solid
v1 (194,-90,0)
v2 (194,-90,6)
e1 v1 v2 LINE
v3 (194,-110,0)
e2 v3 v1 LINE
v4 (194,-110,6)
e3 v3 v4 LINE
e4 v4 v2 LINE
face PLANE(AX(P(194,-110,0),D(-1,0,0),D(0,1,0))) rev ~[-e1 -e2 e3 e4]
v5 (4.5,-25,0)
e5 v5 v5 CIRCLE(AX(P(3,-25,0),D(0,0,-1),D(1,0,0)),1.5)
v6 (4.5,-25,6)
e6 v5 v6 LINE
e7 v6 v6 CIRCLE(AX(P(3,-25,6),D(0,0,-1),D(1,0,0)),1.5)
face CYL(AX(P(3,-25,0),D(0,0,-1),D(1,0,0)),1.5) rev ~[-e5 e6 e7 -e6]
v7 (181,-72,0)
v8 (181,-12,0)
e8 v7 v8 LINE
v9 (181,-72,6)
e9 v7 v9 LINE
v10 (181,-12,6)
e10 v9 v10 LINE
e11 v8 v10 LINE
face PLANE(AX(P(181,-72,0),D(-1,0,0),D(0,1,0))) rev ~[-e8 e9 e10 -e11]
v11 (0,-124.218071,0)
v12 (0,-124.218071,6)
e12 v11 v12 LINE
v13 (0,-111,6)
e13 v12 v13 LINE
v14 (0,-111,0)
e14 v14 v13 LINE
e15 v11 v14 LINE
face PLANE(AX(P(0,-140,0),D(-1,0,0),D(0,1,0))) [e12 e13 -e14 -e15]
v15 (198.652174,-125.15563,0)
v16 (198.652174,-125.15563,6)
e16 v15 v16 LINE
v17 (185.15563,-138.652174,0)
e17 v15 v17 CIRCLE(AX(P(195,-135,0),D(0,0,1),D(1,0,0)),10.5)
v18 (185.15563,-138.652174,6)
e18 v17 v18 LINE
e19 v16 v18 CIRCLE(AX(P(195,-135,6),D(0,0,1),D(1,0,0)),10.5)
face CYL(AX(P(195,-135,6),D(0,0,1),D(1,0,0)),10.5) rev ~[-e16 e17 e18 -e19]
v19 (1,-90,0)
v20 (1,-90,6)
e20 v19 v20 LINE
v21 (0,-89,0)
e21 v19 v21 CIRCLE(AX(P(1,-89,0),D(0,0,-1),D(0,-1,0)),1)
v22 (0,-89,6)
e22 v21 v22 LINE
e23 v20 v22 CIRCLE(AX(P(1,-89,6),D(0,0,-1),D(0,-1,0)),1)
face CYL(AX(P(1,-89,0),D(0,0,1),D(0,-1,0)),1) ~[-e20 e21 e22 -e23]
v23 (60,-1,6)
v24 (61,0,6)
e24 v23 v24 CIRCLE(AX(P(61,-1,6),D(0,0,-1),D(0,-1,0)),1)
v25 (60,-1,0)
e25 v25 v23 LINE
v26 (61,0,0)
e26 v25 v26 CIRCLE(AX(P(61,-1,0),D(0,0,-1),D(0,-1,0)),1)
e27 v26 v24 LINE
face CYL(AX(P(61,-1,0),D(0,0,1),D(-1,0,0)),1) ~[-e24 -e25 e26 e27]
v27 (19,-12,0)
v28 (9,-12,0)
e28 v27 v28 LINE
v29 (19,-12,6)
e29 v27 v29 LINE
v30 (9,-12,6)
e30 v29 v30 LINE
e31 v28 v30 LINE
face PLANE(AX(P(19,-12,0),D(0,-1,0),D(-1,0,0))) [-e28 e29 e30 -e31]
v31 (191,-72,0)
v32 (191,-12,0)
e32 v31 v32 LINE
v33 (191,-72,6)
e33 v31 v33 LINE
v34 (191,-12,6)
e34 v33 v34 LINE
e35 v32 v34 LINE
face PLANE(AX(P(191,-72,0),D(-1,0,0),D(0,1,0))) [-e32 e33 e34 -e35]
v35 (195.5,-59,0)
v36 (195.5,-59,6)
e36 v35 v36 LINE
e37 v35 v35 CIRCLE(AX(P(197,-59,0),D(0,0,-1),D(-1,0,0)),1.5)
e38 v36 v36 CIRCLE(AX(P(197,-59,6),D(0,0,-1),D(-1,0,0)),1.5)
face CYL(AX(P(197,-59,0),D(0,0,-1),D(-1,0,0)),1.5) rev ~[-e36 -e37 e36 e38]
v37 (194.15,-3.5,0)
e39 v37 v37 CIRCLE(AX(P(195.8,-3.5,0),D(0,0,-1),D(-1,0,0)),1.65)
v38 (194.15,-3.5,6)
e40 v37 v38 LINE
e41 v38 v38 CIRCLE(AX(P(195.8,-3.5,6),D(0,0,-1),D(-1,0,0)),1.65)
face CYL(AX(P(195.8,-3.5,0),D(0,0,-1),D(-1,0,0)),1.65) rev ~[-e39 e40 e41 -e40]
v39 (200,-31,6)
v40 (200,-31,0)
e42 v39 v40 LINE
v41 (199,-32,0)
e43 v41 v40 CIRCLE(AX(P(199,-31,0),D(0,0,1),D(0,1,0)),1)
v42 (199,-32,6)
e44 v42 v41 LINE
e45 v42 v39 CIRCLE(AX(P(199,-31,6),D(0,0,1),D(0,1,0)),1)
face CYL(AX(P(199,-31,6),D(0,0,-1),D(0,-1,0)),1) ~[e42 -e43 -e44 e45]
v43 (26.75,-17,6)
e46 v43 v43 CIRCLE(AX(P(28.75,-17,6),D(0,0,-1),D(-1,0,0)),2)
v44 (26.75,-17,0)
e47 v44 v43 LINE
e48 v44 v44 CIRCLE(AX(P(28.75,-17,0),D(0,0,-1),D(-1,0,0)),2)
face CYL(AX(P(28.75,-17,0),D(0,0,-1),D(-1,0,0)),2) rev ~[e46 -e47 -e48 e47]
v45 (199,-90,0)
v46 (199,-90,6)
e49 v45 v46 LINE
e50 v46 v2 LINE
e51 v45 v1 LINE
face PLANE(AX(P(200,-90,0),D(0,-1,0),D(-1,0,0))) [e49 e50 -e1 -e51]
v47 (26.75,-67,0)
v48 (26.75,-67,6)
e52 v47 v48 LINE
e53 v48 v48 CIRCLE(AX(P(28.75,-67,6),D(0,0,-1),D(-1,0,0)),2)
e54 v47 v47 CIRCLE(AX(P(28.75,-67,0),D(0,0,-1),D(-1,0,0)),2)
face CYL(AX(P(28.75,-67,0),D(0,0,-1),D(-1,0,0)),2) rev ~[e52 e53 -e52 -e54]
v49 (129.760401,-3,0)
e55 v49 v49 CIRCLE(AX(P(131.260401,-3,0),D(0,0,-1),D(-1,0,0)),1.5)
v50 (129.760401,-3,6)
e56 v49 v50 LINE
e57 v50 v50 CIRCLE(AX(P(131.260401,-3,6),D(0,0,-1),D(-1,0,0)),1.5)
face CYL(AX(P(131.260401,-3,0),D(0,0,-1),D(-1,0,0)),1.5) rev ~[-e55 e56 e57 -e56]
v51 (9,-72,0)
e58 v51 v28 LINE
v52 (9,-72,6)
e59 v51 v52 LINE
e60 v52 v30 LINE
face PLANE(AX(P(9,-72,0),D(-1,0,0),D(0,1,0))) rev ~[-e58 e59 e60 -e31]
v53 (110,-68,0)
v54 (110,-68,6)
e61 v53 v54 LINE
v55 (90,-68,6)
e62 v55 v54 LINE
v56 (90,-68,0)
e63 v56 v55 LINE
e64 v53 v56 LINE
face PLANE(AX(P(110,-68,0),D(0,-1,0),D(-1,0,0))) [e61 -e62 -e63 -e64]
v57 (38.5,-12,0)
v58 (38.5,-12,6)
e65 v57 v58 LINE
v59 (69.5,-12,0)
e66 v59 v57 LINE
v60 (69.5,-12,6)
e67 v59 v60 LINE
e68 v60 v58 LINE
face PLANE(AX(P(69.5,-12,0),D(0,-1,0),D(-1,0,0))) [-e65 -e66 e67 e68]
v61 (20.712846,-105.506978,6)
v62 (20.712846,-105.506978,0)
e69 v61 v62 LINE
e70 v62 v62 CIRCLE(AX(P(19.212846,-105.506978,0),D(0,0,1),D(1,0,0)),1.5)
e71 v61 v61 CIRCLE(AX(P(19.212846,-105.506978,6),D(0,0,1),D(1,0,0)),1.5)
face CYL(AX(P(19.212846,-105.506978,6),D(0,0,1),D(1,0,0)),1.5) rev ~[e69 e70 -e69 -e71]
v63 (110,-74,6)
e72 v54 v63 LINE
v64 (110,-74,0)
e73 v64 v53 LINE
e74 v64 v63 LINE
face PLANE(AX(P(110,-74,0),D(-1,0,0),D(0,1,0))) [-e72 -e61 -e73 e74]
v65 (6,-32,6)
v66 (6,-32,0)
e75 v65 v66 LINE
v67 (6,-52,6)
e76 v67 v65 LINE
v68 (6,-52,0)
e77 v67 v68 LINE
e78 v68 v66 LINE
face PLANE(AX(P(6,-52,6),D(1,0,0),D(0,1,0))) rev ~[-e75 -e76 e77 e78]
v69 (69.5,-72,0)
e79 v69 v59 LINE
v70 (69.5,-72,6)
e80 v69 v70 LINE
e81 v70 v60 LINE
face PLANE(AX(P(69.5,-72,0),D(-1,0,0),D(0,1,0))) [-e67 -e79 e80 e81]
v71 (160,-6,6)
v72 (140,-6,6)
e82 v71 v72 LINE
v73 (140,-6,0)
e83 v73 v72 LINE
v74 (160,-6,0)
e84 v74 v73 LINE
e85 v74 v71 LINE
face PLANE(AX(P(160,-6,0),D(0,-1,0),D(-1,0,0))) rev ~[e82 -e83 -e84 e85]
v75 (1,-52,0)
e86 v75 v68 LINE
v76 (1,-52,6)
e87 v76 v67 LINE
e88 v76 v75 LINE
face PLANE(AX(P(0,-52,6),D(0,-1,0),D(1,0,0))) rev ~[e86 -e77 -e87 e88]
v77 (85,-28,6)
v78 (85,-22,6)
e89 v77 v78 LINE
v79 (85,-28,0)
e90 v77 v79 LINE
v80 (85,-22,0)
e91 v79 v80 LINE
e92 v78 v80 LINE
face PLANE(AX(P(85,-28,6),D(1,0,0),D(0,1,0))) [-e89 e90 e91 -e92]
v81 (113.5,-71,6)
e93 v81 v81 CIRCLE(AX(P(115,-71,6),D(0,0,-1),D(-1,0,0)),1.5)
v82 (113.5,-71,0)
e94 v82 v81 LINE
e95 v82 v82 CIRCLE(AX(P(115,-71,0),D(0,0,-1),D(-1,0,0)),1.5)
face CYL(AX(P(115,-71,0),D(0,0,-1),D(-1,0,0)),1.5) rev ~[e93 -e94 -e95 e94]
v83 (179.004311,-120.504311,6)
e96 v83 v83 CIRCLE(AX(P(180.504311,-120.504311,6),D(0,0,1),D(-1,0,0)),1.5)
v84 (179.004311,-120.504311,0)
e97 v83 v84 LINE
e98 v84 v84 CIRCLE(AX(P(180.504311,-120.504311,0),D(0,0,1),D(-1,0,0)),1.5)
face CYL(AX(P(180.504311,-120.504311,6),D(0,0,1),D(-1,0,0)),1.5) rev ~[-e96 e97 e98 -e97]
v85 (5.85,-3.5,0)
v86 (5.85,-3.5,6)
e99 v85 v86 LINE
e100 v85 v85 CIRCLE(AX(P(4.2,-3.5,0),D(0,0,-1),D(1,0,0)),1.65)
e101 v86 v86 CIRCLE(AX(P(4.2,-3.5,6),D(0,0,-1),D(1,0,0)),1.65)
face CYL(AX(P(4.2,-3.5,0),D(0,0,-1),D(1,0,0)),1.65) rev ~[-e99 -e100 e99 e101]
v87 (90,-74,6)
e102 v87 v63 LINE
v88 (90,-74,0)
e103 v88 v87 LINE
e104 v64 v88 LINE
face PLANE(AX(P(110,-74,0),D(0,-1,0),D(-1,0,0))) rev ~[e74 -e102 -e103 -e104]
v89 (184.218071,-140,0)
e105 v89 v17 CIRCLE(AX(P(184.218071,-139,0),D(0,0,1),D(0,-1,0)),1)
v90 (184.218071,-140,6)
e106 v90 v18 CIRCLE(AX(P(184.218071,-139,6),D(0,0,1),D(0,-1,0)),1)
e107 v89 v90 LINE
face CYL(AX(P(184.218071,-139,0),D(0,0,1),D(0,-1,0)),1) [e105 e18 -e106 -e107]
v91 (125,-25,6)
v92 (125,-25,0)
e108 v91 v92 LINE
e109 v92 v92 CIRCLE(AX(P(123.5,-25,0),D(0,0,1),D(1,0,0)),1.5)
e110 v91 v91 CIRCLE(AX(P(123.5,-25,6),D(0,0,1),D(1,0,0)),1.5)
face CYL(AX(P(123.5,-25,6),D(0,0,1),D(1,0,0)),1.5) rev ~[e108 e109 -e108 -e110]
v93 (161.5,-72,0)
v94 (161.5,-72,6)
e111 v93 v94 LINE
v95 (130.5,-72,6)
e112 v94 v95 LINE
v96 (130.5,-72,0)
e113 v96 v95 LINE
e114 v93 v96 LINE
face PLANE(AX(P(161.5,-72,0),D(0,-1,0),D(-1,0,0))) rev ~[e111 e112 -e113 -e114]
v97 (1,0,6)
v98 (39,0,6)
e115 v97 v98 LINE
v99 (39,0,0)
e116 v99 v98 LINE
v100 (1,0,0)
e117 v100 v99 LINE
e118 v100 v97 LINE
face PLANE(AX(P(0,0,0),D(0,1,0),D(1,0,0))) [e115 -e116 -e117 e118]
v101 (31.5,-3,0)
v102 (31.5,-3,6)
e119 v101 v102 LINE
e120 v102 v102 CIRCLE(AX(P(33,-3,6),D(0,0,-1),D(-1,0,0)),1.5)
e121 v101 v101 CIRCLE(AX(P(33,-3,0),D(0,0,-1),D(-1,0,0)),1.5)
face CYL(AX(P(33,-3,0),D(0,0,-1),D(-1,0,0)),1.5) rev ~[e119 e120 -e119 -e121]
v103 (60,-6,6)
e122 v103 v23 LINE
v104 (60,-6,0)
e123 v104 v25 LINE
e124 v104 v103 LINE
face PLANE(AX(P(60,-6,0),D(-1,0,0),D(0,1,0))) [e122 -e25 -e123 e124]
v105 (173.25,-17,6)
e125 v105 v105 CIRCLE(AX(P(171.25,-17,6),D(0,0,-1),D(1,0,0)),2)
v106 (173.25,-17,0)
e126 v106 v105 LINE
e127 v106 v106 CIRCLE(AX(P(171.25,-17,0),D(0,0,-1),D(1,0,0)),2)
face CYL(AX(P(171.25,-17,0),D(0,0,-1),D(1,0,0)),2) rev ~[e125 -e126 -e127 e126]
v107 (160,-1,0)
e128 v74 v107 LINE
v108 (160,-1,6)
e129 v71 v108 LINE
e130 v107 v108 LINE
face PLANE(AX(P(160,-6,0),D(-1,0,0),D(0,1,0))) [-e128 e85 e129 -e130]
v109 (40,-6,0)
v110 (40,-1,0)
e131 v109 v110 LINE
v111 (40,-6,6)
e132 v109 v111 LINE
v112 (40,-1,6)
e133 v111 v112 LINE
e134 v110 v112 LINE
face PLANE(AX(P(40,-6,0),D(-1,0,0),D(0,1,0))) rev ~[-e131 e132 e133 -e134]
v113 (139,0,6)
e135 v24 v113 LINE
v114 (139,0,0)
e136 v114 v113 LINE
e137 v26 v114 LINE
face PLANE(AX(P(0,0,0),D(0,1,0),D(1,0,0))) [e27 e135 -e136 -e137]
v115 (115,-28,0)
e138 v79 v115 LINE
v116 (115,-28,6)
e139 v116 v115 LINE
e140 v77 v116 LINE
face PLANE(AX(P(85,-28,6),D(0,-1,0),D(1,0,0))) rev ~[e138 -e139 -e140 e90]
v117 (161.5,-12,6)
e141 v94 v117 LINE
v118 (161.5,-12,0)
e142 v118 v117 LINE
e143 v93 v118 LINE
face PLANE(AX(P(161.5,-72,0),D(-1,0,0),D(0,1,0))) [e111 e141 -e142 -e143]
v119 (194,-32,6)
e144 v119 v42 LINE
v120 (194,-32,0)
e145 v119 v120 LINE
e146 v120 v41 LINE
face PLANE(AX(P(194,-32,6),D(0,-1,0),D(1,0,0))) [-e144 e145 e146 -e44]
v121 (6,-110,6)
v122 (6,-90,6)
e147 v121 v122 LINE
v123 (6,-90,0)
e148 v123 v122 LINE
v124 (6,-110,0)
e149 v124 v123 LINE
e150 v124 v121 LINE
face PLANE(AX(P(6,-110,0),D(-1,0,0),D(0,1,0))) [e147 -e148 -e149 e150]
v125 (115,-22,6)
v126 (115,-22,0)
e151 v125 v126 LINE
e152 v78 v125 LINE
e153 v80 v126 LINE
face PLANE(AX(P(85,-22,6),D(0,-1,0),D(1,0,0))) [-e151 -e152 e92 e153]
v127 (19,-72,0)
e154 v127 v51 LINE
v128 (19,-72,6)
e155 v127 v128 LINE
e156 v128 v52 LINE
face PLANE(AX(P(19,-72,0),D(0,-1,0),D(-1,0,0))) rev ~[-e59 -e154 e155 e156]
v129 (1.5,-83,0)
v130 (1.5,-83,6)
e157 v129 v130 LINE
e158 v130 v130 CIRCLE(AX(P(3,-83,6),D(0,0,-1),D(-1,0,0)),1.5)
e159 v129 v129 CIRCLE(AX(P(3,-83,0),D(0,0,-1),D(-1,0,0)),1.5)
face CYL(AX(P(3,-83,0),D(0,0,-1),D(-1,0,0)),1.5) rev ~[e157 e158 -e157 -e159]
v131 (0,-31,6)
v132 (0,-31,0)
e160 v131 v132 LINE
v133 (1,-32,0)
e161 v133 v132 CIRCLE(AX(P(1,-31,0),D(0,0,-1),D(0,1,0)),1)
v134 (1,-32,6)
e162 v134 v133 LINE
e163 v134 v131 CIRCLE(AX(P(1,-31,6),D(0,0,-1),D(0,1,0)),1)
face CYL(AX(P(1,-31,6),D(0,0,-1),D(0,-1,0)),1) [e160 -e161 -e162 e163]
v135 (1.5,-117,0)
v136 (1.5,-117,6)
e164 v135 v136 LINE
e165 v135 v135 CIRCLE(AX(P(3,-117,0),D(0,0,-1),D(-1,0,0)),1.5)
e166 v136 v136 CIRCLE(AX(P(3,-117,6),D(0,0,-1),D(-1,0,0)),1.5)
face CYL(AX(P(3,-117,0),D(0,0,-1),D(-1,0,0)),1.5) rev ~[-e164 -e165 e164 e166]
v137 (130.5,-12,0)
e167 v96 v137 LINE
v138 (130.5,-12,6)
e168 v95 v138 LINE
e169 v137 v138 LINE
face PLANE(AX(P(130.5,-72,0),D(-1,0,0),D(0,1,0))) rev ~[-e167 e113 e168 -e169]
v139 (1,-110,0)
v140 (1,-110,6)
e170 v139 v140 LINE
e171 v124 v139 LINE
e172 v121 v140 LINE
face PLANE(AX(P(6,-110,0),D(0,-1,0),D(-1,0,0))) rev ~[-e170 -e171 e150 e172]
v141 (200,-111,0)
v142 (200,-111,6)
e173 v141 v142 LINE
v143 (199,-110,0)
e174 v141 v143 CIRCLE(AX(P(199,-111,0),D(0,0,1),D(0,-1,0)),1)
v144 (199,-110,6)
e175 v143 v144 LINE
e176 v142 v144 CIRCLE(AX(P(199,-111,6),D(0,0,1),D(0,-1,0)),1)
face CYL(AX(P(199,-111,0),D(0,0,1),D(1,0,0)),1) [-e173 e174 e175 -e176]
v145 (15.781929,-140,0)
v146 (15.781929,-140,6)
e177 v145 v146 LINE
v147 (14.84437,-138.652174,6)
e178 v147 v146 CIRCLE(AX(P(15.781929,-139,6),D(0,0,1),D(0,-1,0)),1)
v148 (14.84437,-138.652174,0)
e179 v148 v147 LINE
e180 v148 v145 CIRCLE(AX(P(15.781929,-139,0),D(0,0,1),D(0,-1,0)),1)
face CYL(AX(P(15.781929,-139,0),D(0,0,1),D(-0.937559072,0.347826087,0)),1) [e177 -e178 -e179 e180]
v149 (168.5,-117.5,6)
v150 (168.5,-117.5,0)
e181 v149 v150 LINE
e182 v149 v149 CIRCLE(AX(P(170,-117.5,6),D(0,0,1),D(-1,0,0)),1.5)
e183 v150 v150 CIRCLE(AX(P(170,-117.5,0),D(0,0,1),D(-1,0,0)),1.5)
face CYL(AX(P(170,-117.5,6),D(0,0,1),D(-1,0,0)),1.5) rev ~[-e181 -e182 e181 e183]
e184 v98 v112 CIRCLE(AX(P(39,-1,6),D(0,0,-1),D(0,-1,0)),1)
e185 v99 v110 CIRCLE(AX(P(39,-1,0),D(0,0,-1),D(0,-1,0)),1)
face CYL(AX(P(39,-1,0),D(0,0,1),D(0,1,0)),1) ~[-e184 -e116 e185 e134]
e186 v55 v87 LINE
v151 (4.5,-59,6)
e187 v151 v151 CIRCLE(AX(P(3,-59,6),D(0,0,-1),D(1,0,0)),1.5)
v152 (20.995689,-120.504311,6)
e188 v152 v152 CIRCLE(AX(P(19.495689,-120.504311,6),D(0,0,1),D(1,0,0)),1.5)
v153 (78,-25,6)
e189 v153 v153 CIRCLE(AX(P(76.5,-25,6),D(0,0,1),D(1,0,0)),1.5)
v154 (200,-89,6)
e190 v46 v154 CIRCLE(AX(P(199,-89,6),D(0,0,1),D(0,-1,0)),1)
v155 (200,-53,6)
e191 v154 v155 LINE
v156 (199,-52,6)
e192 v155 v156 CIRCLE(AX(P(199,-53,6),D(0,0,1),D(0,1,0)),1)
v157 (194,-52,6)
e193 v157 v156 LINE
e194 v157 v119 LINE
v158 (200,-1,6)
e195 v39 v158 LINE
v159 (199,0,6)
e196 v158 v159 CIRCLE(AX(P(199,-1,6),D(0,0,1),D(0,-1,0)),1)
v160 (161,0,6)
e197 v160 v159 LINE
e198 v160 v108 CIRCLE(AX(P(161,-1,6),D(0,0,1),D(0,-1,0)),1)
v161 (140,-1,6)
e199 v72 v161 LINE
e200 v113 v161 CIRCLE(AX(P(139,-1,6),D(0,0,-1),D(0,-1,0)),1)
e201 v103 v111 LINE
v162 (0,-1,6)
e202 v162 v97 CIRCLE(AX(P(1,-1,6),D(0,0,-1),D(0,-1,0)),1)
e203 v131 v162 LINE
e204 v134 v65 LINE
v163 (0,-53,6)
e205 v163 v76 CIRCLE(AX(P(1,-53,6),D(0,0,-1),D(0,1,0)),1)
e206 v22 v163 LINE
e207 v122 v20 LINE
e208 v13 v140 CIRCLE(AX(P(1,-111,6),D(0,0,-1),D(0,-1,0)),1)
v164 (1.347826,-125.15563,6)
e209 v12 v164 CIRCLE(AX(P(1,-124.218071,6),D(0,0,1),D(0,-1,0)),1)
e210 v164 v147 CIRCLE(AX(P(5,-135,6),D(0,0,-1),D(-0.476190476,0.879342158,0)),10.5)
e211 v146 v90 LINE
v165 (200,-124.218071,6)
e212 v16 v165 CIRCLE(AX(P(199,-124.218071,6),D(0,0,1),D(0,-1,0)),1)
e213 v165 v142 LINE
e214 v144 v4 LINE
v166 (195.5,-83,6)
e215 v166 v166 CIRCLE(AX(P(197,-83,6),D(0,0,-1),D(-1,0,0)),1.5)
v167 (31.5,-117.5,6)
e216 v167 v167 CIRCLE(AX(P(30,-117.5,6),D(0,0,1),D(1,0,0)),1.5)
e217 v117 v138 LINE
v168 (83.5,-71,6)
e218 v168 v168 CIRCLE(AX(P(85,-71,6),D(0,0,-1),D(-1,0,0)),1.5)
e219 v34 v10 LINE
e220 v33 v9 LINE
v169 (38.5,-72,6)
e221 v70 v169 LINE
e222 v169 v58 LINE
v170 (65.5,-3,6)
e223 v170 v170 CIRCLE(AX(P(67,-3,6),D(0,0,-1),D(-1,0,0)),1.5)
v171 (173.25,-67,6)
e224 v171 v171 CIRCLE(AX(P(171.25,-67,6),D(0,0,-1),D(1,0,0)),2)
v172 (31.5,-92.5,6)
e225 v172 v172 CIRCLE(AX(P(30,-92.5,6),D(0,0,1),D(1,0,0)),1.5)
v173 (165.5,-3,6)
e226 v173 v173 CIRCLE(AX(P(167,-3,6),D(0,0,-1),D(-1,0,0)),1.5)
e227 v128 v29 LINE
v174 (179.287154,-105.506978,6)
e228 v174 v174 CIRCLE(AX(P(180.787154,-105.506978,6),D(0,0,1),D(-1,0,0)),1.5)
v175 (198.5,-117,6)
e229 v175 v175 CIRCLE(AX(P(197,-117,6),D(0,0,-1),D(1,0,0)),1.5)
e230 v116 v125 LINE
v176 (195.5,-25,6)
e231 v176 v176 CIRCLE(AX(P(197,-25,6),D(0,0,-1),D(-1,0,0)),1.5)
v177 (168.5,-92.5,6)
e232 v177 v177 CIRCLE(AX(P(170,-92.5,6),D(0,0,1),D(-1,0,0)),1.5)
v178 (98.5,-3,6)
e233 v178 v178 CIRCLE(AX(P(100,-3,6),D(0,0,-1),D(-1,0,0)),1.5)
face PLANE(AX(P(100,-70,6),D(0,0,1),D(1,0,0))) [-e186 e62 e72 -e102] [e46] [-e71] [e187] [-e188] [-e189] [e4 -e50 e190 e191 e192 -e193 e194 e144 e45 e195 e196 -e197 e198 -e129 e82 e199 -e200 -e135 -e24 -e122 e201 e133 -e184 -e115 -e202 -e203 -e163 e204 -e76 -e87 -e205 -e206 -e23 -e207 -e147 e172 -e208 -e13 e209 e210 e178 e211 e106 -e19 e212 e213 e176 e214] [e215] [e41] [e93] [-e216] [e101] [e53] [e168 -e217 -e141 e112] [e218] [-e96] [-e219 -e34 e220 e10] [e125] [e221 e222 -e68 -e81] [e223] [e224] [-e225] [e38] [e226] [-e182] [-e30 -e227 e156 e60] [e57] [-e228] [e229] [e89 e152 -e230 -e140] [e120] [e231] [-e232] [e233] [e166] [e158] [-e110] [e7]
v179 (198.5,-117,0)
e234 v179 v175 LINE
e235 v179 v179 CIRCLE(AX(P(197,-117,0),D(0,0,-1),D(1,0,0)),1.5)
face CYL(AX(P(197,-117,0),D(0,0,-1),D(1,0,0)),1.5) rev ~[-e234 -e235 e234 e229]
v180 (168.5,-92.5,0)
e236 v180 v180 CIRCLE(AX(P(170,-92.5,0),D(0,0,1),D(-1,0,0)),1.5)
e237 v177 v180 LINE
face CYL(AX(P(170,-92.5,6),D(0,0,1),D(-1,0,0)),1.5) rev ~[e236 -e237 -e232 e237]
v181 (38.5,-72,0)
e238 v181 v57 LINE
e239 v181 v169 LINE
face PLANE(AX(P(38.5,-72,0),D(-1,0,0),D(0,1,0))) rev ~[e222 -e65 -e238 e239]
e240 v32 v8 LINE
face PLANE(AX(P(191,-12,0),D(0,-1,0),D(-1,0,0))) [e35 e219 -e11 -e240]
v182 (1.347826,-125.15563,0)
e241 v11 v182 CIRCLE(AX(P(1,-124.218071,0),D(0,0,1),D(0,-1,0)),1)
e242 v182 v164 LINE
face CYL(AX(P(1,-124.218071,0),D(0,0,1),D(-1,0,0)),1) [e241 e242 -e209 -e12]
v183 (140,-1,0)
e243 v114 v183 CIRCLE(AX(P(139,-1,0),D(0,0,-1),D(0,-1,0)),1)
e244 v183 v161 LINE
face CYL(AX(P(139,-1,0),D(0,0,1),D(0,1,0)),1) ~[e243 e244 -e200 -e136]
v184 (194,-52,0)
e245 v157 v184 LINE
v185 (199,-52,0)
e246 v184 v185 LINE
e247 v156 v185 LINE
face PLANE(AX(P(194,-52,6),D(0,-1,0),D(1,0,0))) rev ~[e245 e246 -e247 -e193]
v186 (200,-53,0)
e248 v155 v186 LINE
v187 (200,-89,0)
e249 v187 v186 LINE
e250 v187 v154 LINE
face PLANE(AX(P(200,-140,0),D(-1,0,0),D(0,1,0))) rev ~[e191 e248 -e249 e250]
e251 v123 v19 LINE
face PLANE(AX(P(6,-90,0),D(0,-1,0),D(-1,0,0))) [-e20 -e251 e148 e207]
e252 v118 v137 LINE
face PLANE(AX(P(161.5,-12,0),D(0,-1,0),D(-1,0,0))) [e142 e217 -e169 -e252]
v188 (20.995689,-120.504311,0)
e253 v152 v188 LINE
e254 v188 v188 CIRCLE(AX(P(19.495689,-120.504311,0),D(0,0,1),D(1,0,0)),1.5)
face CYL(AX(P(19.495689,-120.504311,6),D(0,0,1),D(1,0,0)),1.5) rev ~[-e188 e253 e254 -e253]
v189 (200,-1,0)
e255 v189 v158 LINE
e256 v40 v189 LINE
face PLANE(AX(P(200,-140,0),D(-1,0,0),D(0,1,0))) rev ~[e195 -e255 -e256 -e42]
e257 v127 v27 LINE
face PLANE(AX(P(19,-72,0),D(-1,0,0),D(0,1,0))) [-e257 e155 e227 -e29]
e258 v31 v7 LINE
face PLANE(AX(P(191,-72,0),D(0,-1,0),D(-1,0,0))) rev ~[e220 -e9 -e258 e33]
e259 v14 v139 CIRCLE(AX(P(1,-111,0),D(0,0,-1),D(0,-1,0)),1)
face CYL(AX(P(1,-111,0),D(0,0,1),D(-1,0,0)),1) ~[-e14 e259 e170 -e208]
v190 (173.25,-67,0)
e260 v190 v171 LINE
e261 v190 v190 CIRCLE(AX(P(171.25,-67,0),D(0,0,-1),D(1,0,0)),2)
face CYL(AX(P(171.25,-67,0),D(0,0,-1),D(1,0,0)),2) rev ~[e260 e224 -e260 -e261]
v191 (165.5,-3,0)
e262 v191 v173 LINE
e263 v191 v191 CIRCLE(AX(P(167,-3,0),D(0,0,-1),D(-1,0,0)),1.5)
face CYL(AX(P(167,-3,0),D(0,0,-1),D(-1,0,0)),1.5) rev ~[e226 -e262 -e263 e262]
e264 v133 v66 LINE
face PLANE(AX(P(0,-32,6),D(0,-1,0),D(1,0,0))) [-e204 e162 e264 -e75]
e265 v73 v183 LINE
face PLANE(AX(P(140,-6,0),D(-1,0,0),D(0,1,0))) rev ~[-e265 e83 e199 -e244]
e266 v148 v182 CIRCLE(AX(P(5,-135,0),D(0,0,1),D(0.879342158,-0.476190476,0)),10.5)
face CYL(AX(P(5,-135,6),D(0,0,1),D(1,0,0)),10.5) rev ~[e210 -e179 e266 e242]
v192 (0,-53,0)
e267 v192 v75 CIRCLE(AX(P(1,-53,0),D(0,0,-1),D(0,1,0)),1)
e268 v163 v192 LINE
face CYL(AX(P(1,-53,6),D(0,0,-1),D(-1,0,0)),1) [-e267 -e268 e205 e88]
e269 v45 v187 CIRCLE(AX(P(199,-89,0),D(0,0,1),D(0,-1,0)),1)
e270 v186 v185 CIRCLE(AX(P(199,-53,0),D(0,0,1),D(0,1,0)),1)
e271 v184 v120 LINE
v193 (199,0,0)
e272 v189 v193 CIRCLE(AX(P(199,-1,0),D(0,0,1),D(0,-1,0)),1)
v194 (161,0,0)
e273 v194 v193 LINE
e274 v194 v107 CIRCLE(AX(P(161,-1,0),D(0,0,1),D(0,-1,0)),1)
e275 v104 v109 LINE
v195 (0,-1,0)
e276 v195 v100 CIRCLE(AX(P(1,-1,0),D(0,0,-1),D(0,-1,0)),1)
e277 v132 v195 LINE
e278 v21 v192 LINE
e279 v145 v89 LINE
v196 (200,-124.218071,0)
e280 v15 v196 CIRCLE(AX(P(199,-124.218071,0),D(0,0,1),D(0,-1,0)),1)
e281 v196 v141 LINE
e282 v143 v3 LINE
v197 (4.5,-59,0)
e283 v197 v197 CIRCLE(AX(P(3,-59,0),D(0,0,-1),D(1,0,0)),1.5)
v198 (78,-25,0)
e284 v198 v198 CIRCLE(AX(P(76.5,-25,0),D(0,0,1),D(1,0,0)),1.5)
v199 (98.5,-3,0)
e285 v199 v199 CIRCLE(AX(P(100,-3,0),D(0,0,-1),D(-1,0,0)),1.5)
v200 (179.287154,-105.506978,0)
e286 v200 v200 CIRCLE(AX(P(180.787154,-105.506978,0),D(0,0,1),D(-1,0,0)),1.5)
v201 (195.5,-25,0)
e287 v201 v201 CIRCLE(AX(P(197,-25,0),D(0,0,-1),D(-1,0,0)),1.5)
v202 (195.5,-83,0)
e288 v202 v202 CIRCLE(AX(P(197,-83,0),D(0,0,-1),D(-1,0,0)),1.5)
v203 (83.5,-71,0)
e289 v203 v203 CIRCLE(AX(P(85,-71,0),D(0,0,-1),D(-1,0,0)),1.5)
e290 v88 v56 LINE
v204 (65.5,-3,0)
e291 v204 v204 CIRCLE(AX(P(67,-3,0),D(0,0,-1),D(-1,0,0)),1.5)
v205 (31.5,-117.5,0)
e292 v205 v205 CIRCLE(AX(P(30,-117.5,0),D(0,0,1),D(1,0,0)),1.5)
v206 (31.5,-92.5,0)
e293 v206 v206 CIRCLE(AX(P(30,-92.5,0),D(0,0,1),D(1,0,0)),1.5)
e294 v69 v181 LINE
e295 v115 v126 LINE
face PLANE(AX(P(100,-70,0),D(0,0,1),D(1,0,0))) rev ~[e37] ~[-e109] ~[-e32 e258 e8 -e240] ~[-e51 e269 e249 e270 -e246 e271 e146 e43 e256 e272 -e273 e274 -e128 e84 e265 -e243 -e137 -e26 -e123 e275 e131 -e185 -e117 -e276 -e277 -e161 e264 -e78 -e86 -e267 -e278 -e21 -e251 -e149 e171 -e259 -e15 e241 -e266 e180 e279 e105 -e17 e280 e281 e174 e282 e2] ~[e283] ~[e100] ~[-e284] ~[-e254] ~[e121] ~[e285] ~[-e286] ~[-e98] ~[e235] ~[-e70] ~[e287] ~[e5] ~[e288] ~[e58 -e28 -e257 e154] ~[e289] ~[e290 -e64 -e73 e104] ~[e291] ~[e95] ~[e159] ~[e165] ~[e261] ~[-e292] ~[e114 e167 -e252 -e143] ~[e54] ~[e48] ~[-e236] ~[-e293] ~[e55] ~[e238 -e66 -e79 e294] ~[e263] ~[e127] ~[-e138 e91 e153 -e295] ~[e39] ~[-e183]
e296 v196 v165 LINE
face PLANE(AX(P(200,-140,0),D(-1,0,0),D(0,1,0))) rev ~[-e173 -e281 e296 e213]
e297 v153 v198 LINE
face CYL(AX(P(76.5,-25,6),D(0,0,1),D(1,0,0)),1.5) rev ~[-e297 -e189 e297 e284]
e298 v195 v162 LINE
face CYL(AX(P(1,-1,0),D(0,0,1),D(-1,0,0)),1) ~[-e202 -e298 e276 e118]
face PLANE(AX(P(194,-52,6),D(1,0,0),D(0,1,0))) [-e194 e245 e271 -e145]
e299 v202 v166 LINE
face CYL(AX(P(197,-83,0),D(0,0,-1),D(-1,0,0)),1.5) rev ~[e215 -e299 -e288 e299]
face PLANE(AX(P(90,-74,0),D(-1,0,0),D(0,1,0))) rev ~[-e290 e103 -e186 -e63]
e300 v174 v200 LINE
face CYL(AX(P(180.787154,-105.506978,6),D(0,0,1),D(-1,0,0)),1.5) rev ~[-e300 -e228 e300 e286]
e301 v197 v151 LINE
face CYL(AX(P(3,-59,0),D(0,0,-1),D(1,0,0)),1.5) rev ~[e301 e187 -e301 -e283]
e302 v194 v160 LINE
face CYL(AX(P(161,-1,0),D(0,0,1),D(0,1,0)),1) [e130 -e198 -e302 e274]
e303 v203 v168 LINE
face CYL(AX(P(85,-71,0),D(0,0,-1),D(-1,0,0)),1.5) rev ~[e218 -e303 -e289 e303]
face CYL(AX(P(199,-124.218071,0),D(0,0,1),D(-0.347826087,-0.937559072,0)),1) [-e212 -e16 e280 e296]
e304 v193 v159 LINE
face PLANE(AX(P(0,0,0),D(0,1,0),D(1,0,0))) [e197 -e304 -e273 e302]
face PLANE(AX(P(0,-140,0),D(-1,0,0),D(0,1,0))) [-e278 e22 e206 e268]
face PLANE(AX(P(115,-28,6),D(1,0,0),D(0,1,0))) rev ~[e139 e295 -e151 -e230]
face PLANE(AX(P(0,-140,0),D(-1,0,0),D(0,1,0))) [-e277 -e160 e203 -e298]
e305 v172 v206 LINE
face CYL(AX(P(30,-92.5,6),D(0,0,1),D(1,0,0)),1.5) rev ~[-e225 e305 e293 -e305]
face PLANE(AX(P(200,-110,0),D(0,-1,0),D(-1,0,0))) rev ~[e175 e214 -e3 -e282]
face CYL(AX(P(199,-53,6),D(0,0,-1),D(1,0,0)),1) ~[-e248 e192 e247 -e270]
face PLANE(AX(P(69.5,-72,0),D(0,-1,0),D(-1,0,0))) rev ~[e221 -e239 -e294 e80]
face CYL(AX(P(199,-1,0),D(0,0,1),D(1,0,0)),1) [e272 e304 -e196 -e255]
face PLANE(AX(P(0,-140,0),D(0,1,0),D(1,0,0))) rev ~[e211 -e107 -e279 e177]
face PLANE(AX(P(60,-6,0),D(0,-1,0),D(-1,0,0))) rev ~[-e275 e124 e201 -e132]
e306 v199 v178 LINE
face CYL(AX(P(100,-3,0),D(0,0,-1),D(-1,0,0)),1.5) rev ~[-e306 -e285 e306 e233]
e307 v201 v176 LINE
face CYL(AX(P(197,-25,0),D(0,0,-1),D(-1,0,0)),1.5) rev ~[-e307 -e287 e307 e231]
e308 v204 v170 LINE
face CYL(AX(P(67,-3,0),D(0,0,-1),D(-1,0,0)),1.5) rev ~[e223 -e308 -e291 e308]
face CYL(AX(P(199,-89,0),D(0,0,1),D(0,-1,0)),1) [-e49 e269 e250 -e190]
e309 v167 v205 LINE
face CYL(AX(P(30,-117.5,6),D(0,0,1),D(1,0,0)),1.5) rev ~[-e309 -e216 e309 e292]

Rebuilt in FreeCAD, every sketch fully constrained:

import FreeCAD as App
import Part
import Sketcher


def edges_at(feature, points):
    """Names of the edges that pass closest to the given points."""
    edges = feature.Shape.Edges
    near = lambda p: min(range(len(edges)), key=lambda i: edges[i].distToShape(Part.Vertex(*p))[0])
    return sorted({f"Edge{near(p) + 1}" for p in points})

doc = App.newDocument("Part")
body = doc.addObject("PartDesign::Body", "Body")

sketch1 = body.newObject("Sketcher::SketchObject", "Sketch")
sketch1.AttachmentSupport = (doc.getObject("XY_Plane"), [""])
sketch1.MapMode = "FlatFace"
sketch1.addGeometry([
    Part.LineSegment(App.Vector(0, 0, 0), App.Vector(0, -140, 0)),
    Part.LineSegment(App.Vector(0, -140, 0), App.Vector(200, -140, 0)),
    Part.LineSegment(App.Vector(200, -140, 0), App.Vector(200, 0, 0)),
    Part.LineSegment(App.Vector(200, 0, 0), App.Vector(0, 0, 0)),
], False)
sketch1.addConstraint([
    Sketcher.Constraint("Coincident", 0, 2, 1, 1),
    Sketcher.Constraint("Coincident", 1, 2, 2, 1),
    Sketcher.Constraint("Coincident", 2, 2, 3, 1),
    Sketcher.Constraint("Coincident", 3, 2, 0, 1),
    Sketcher.Constraint("Vertical", 0),
    Sketcher.Constraint("Horizontal", 1),
    Sketcher.Constraint("Vertical", 2),
    Sketcher.Constraint("Horizontal", 3),
    Sketcher.Constraint("Coincident", 3, 2, -1, 1),
    Sketcher.Constraint("DistanceX", 1, 1, 1, 2, 200.0),
    Sketcher.Constraint("DistanceY", 0, 2, 0, 1, 140.0),
])
pad1 = body.newObject("PartDesign::Pad", "Pad")
pad1.Profile = sketch1
pad1.Length = 6

sketch2 = body.newObject("Sketcher::SketchObject", "Sketch001")
sketch2.AttachmentSupport = (doc.getObject("XY_Plane"), [""])
sketch2.MapMode = "FlatFace"
sketch2.addGeometry([
    Part.LineSegment(App.Vector(162, -12, 0), App.Vector(162, -72, 0)),
    Part.LineSegment(App.Vector(162, -72, 0), App.Vector(130, -72, 0)),
    Part.LineSegment(App.Vector(130, -72, 0), App.Vector(130, -12, 0)),
    Part.LineSegment(App.Vector(130, -12, 0), App.Vector(162, -12, 0)),
    Part.LineSegment(App.Vector(191, -12, 0), App.Vector(191, -72, 0)),
    Part.LineSegment(App.Vector(191, -72, 0), App.Vector(181, -72, 0)),
    Part.LineSegment(App.Vector(181, -72, 0), App.Vector(181, -12, 0)),
    Part.LineSegment(App.Vector(181, -12, 0), App.Vector(191, -12, 0)),
    Part.LineSegment(App.Vector(19, -12, 0), App.Vector(19, -72, 0)),
    Part.LineSegment(App.Vector(19, -72, 0), App.Vector(9, -72, 0)),
    Part.LineSegment(App.Vector(9, -72, 0), App.Vector(9, -12, 0)),
    Part.LineSegment(App.Vector(9, -12, 0), App.Vector(19, -12, 0)),
    Part.LineSegment(App.Vector(70, -12, 0), App.Vector(70, -72, 0)),
    Part.LineSegment(App.Vector(70, -72, 0), App.Vector(38, -72, 0)),
    Part.LineSegment(App.Vector(38, -72, 0), App.Vector(38, -12, 0)),
    Part.LineSegment(App.Vector(38, -12, 0), App.Vector(70, -12, 0)),
], False)
sketch2.addConstraint([
    Sketcher.Constraint("Coincident", 0, 2, 1, 1),
    Sketcher.Constraint("Coincident", 1, 2, 2, 1),
    Sketcher.Constraint("Coincident", 2, 2, 3, 1),
    Sketcher.Constraint("Coincident", 3, 2, 0, 1),
    Sketcher.Constraint("Coincident", 4, 2, 5, 1),
    Sketcher.Constraint("Coincident", 5, 2, 6, 1),
    Sketcher.Constraint("Coincident", 6, 2, 7, 1),
    Sketcher.Constraint("Coincident", 7, 2, 4, 1),
    Sketcher.Constraint("Coincident", 8, 2, 9, 1),
    Sketcher.Constraint("Coincident", 9, 2, 10, 1),
    Sketcher.Constraint("Coincident", 10, 2, 11, 1),
    Sketcher.Constraint("Coincident", 11, 2, 8, 1),
    Sketcher.Constraint("Coincident", 12, 2, 13, 1),
    Sketcher.Constraint("Coincident", 13, 2, 14, 1),
    Sketcher.Constraint("Coincident", 14, 2, 15, 1),
    Sketcher.Constraint("Coincident", 15, 2, 12, 1),
    Sketcher.Constraint("Vertical", 0),
    Sketcher.Constraint("Horizontal", 1),
    Sketcher.Constraint("Vertical", 2),
    Sketcher.Constraint("Horizontal", 3),
    Sketcher.Constraint("Vertical", 4),
    Sketcher.Constraint("Horizontal", 5),
    Sketcher.Constraint("Vertical", 6),
    Sketcher.Constraint("Horizontal", 7),
    Sketcher.Constraint("Vertical", 8),
    Sketcher.Constraint("Horizontal", 9),
    Sketcher.Constraint("Vertical", 10),
    Sketcher.Constraint("Horizontal", 11),
    Sketcher.Constraint("Vertical", 12),
    Sketcher.Constraint("Horizontal", 13),
    Sketcher.Constraint("Vertical", 14),
    Sketcher.Constraint("Horizontal", 15),
    Sketcher.Constraint("Horizontal", 1, 2, 4, 2),
    Sketcher.Constraint("Horizontal", 3, 2, 6, 2),
    Sketcher.Constraint("Horizontal", 5, 2, 8, 2),
    Sketcher.Constraint("Horizontal", 7, 2, 10, 2),
    Sketcher.Constraint("Horizontal", 9, 2, 12, 2),
    Sketcher.Constraint("Horizontal", 11, 2, 14, 2),
    Sketcher.Constraint("Equal", 7, 9),
    Sketcher.Constraint("Equal", 3, 13),
    Sketcher.Constraint("DistanceX", 1, 2, 1, 1, 31.0),
    Sketcher.Constraint("DistanceX", 5, 2, 5, 1, 10.0),
    Sketcher.Constraint("DistanceY", 0, 2, 0, 1, 60.0),
    Sketcher.Constraint("DistanceY", 0, 2, -1, 1, 72.0),
    Sketcher.Constraint("DistanceX", -1, 1, 4, 2, 191.0),
    Sketcher.Constraint("DistanceX", -1, 1, 8, 2, 19.0),
    Sketcher.Constraint("DistanceX", 12, 2, 1, 2, 61.0),
    Sketcher.Constraint("DistanceX", -1, 1, 0, 2, 161.5),
])
pocket1 = body.newObject("PartDesign::Pocket", "Pocket")
pocket1.Profile = sketch2
pocket1.Length = 6
pocket1.Reversed = True

sketch3 = body.newObject("Sketcher::SketchObject", "Sketch002")
sketch3.AttachmentSupport = (doc.getObject("XY_Plane"), [""])
sketch3.MapMode = "FlatFace"
sketch3.addGeometry([
    Part.LineSegment(App.Vector(160, 0, 0), App.Vector(160, -6, 0)),
    Part.LineSegment(App.Vector(160, -6, 0), App.Vector(140, -6, 0)),
    Part.LineSegment(App.Vector(140, -6, 0), App.Vector(140, 0, 0)),
    Part.LineSegment(App.Vector(140, 0, 0), App.Vector(160, 0, 0)),
    Part.LineSegment(App.Vector(60, 0, 0), App.Vector(60, -6, 0)),
    Part.LineSegment(App.Vector(60, -6, 0), App.Vector(40, -6, 0)),
    Part.LineSegment(App.Vector(40, -6, 0), App.Vector(40, 0, 0)),
    Part.LineSegment(App.Vector(40, 0, 0), App.Vector(60, 0, 0)),
], False)
sketch3.addConstraint([
    Sketcher.Constraint("Coincident", 0, 2, 1, 1),
    Sketcher.Constraint("Coincident", 1, 2, 2, 1),
    Sketcher.Constraint("Coincident", 2, 2, 3, 1),
    Sketcher.Constraint("Coincident", 3, 2, 0, 1),
    Sketcher.Constraint("Coincident", 4, 2, 5, 1),
    Sketcher.Constraint("Coincident", 5, 2, 6, 1),
    Sketcher.Constraint("Coincident", 6, 2, 7, 1),
    Sketcher.Constraint("Coincident", 7, 2, 4, 1),
    Sketcher.Constraint("Vertical", 0),
    Sketcher.Constraint("Horizontal", 1),
    Sketcher.Constraint("Vertical", 2),
    Sketcher.Constraint("Horizontal", 3),
    Sketcher.Constraint("Vertical", 4),
    Sketcher.Constraint("Horizontal", 5),
    Sketcher.Constraint("Vertical", 6),
    Sketcher.Constraint("Horizontal", 7),
    Sketcher.Constraint("PointOnObject", 2, 2, -1),
    Sketcher.Constraint("PointOnObject", 6, 2, -1),
    Sketcher.Constraint("Horizontal", 1, 2, 4, 2),
    Sketcher.Constraint("Equal", 3, 5),
    Sketcher.Constraint("DistanceX", 1, 2, 1, 1, 20.0),
    Sketcher.Constraint("DistanceY", 0, 2, 0, 1, 6.0),
    Sketcher.Constraint("DistanceX", -1, 1, 0, 2, 160.0),
    Sketcher.Constraint("DistanceX", -1, 1, 4, 2, 60.0),
])
pocket2 = body.newObject("PartDesign::Pocket", "Pocket001")
pocket2.Profile = sketch3
pocket2.Length = 6
pocket2.Reversed = True

sketch4 = body.newObject("Sketcher::SketchObject", "Sketch003")
sketch4.AttachmentSupport = (doc.getObject("XY_Plane"), [""])
sketch4.MapMode = "FlatFace"
sketch4.addGeometry([
    Part.LineSegment(App.Vector(200, -90, 0), App.Vector(200, -110, 0)),
    Part.LineSegment(App.Vector(200, -110, 0), App.Vector(194, -110, 0)),
    Part.LineSegment(App.Vector(194, -110, 0), App.Vector(194, -90, 0)),
    Part.LineSegment(App.Vector(194, -90, 0), App.Vector(200, -90, 0)),
    Part.LineSegment(App.Vector(6, -90, 0), App.Vector(6, -110, 0)),
    Part.LineSegment(App.Vector(6, -110, 0), App.Vector(0, -110, 0)),
    Part.LineSegment(App.Vector(0, -110, 0), App.Vector(0, -90, 0)),
    Part.LineSegment(App.Vector(0, -90, 0), App.Vector(6, -90, 0)),
], False)
sketch4.addConstraint([
    Sketcher.Constraint("Coincident", 0, 2, 1, 1),
    Sketcher.Constraint("Coincident", 1, 2, 2, 1),
    Sketcher.Constraint("Coincident", 2, 2, 3, 1),
    Sketcher.Constraint("Coincident", 3, 2, 0, 1),
    Sketcher.Constraint("Coincident", 4, 2, 5, 1),
    Sketcher.Constraint("Coincident", 5, 2, 6, 1),
    Sketcher.Constraint("Coincident", 6, 2, 7, 1),
    Sketcher.Constraint("Coincident", 7, 2, 4, 1),
    Sketcher.Constraint("Vertical", 0),
    Sketcher.Constraint("Horizontal", 1),
    Sketcher.Constraint("Vertical", 2),
    Sketcher.Constraint("Horizontal", 3),
    Sketcher.Constraint("Vertical", 4),
    Sketcher.Constraint("Horizontal", 5),
    Sketcher.Constraint("Vertical", 6),
    Sketcher.Constraint("Horizontal", 7),
    Sketcher.Constraint("PointOnObject", 5, 2, -2),
    Sketcher.Constraint("Horizontal", 1, 2, 4, 2),
    Sketcher.Constraint("Horizontal", 3, 2, 6, 2),
    Sketcher.Constraint("Equal", 3, 5),
    Sketcher.Constraint("DistanceX", 1, 2, 1, 1, 6.0),
    Sketcher.Constraint("DistanceY", 0, 2, 0, 1, 20.0),
    Sketcher.Constraint("DistanceX", -1, 1, 0, 2, 200.0),
    Sketcher.Constraint("DistanceY", 0, 2, -1, 1, 110.0),
])
pocket3 = body.newObject("PartDesign::Pocket", "Pocket002")
pocket3.Profile = sketch4
pocket3.Length = 6
pocket3.Reversed = True

sketch5 = body.newObject("Sketcher::SketchObject", "Sketch004")
sketch5.AttachmentSupport = (doc.getObject("XY_Plane"), [""])
sketch5.MapMode = "FlatFace"
sketch5.AttachmentOffset = App.Placement(App.Vector(0, 0, 6), App.Rotation())
sketch5.addGeometry([
    Part.LineSegment(App.Vector(85, -22, 0), App.Vector(85, -28, 0)),
    Part.LineSegment(App.Vector(85, -28, 0), App.Vector(115, -28, 0)),
    Part.LineSegment(App.Vector(115, -28, 0), App.Vector(115, -22, 0)),
    Part.LineSegment(App.Vector(115, -22, 0), App.Vector(85, -22, 0)),
], False)
sketch5.addConstraint([
    Sketcher.Constraint("Coincident", 0, 2, 1, 1),
    Sketcher.Constraint("Coincident", 1, 2, 2, 1),
    Sketcher.Constraint("Coincident", 2, 2, 3, 1),
    Sketcher.Constraint("Coincident", 3, 2, 0, 1),
    Sketcher.Constraint("Vertical", 0),
    Sketcher.Constraint("Horizontal", 1),
    Sketcher.Constraint("Vertical", 2),
    Sketcher.Constraint("Horizontal", 3),
    Sketcher.Constraint("DistanceX", 1, 1, 1, 2, 30.0),
    Sketcher.Constraint("DistanceY", 0, 2, 0, 1, 6.0),
    Sketcher.Constraint("DistanceX", -1, 1, 0, 2, 85.0),
    Sketcher.Constraint("DistanceY", 0, 2, -1, 1, 28.0),
])
pocket4 = body.newObject("PartDesign::Pocket", "Pocket003")
pocket4.Profile = sketch5
pocket4.Length = 6

sketch6 = body.newObject("Sketcher::SketchObject", "Sketch005")
sketch6.AttachmentSupport = (doc.getObject("XY_Plane"), [""])
sketch6.MapMode = "FlatFace"
sketch6.AttachmentOffset = App.Placement(App.Vector(0, 0, 6), App.Rotation())
sketch6.addGeometry([
    Part.Circle(App.Vector(195, -135, 0), App.Vector(0, 0, 1), 10),
    Part.Circle(App.Vector(5, -135, 0), App.Vector(0, 0, 1), 10),
], False)
sketch6.addConstraint([
    Sketcher.Constraint("Equal", 0, 1),
    Sketcher.Constraint("Horizontal", 0, 3, 1, 3),
    Sketcher.Constraint("Diameter", 0, 21.0),
    Sketcher.Constraint("DistanceX", -1, 1, 0, 3, 195.0),
    Sketcher.Constraint("DistanceY", 0, 3, -1, 1, 135.0),
    Sketcher.Constraint("DistanceX", -1, 1, 1, 3, 5.0),
])
pocket5 = body.newObject("PartDesign::Pocket", "Pocket004")
pocket5.Profile = sketch6
pocket5.Length = 6

sketch7 = body.newObject("Sketcher::SketchObject", "Sketch006")
sketch7.AttachmentSupport = (doc.getObject("XY_Plane"), [""])
sketch7.MapMode = "FlatFace"
sketch7.addGeometry([
    Part.Circle(App.Vector(28.8, -67, 0), App.Vector(0, 0, 1), 2),
    Part.Circle(App.Vector(28.8, -17, 0), App.Vector(0, 0, 1), 2),
    Part.Circle(App.Vector(171.2, -17, 0), App.Vector(0, 0, 1), 2),
    Part.Circle(App.Vector(171.2, -67, 0), App.Vector(0, 0, 1), 2),
], False)
sketch7.addConstraint([
    Sketcher.Constraint("Equal", 0, 1),
    Sketcher.Constraint("Equal", 1, 2),
    Sketcher.Constraint("Equal", 2, 3),
    Sketcher.Constraint("Horizontal", 1, 3, 2, 3),
    Sketcher.Constraint("Horizontal", 0, 3, 3, 3),
    Sketcher.Constraint("Vertical", 0, 3, 1, 3),
    Sketcher.Constraint("Vertical", 2, 3, 3, 3),
    Sketcher.Constraint("Diameter", 0, 4.0),
    Sketcher.Constraint("DistanceY", 0, 3, -1, 1, 67.0),
    Sketcher.Constraint("DistanceY", 1, 3, -1, 1, 17.0),
    Sketcher.Constraint("DistanceX", 1, 3, 2, 3, 142.5),
    Sketcher.Constraint("DistanceX", -1, 1, 0, 3, 28.75),
])
pocket6 = body.newObject("PartDesign::Pocket", "Pocket005")
pocket6.Profile = sketch7
pocket6.Type = "ThroughAll"
pocket6.Reversed = True

sketch8 = body.newObject("Sketcher::SketchObject", "Sketch007")
sketch8.AttachmentSupport = (doc.getObject("XY_Plane"), [""])
sketch8.MapMode = "FlatFace"
sketch8.AttachmentOffset = App.Placement(App.Vector(0, 0, 6), App.Rotation())
sketch8.addGeometry([
    Part.Circle(App.Vector(19.5, -120.5, 0), App.Vector(0, 0, 1), 1.5),
    Part.Circle(App.Vector(19.2, -105.5, 0), App.Vector(0, 0, 1), 1.5),
    Part.Circle(App.Vector(180.8, -105.5, 0), App.Vector(0, 0, 1), 1.5),
    Part.Circle(App.Vector(30, -117.5, 0), App.Vector(0, 0, 1), 1.5),
    Part.Circle(App.Vector(30, -92.5, 0), App.Vector(0, 0, 1), 1.5),
    Part.Circle(App.Vector(180.5, -120.5, 0), App.Vector(0, 0, 1), 1.5),
    Part.Circle(App.Vector(170, -92.5, 0), App.Vector(0, 0, 1), 1.5),
    Part.Circle(App.Vector(170, -117.5, 0), App.Vector(0, 0, 1), 1.5),
    Part.Circle(App.Vector(76.5, -25, 0), App.Vector(0, 0, 1), 1.5),
    Part.Circle(App.Vector(123.5, -25, 0), App.Vector(0, 0, 1), 1.5),
], False)
sketch8.addConstraint([
    Sketcher.Constraint("Equal", 0, 1),
    Sketcher.Constraint("Equal", 1, 2),
    Sketcher.Constraint("Equal", 2, 3),
    Sketcher.Constraint("Equal", 3, 4),
    Sketcher.Constraint("Equal", 4, 5),
    Sketcher.Constraint("Equal", 5, 6),
    Sketcher.Constraint("Equal", 6, 7),
    Sketcher.Constraint("Equal", 7, 8),
    Sketcher.Constraint("Equal", 8, 9),
    Sketcher.Constraint("Horizontal", 1, 3, 2, 3),
    Sketcher.Constraint("Horizontal", 0, 3, 5, 3),
    Sketcher.Constraint("Horizontal", 4, 3, 6, 3),
    Sketcher.Constraint("Horizontal", 3, 3, 7, 3),
    Sketcher.Constraint("Horizontal", 8, 3, 9, 3),
    Sketcher.Constraint("Vertical", 3, 3, 4, 3),
    Sketcher.Constraint("Vertical", 6, 3, 7, 3),
    Sketcher.Constraint("Diameter", 0, 3.0),
    Sketcher.Constraint("DistanceX", -1, 1, 3, 3, 30.0),
    Sketcher.Constraint("DistanceX", -1, 1, 6, 3, 170.0),
    Sketcher.Constraint("DistanceY", 8, 3, -1, 1, 25.0),
    Sketcher.Constraint("DistanceY", 3, 3, 4, 3, 25.0),
    Sketcher.Constraint("DistanceX", 8, 3, 9, 3, 47.0),
    Sketcher.Constraint("DistanceY", 3, 3, -1, 1, 117.5),
    Sketcher.Constraint("DistanceX", -1, 1, 8, 3, 76.5),
    Sketcher.Constraint("DistanceX", -1, 1, 0, 3, 19.495689),
    Sketcher.Constraint("DistanceY", 0, 3, -1, 1, 120.504311),
    Sketcher.Constraint("DistanceX", -1, 1, 5, 3, 180.504311),
    Sketcher.Constraint("DistanceX", -1, 1, 1, 3, 19.212846),
    Sketcher.Constraint("DistanceY", 1, 3, -1, 1, 105.506978),
    Sketcher.Constraint("DistanceX", -1, 1, 2, 3, 180.787154),
])
pocket7 = body.newObject("PartDesign::Pocket", "Pocket006")
pocket7.Profile = sketch8
pocket7.Type = "ThroughAll"

sketch9 = body.newObject("Sketcher::SketchObject", "Sketch008")
sketch9.AttachmentSupport = (doc.getObject("XY_Plane"), [""])
sketch9.MapMode = "FlatFace"
sketch9.addGeometry([
    Part.Circle(App.Vector(85, -71, 0), App.Vector(0, 0, 1), 1.5),
    Part.Circle(App.Vector(115, -71, 0), App.Vector(0, 0, 1), 1.5),
    Part.LineSegment(App.Vector(110, -68, 0), App.Vector(110, -74, 0)),
    Part.LineSegment(App.Vector(110, -74, 0), App.Vector(90, -74, 0)),
    Part.LineSegment(App.Vector(90, -74, 0), App.Vector(90, -68, 0)),
    Part.LineSegment(App.Vector(90, -68, 0), App.Vector(110, -68, 0)),
], False)
sketch9.addConstraint([
    Sketcher.Constraint("Coincident", 2, 2, 3, 1),
    Sketcher.Constraint("Coincident", 3, 2, 4, 1),
    Sketcher.Constraint("Coincident", 4, 2, 5, 1),
    Sketcher.Constraint("Coincident", 5, 2, 2, 1),
    Sketcher.Constraint("Vertical", 2),
    Sketcher.Constraint("Horizontal", 3),
    Sketcher.Constraint("Vertical", 4),
    Sketcher.Constraint("Horizontal", 5),
    Sketcher.Constraint("Equal", 0, 1),
    Sketcher.Constraint("Horizontal", 0, 3, 1, 3),
    Sketcher.Constraint("Diameter", 0, 3.0),
    Sketcher.Constraint("DistanceX", 3, 2, 3, 1, 20.0),
    Sketcher.Constraint("DistanceY", 2, 2, 2, 1, 6.0),
    Sketcher.Constraint("DistanceX", -1, 1, 0, 3, 85.0),
    Sketcher.Constraint("DistanceY", 0, 3, -1, 1, 71.0),
    Sketcher.Constraint("DistanceX", -1, 1, 1, 3, 115.0),
    Sketcher.Constraint("DistanceX", -1, 1, 2, 2, 110.0),
    Sketcher.Constraint("DistanceY", 2, 2, -1, 1, 74.0),
])
pocket8 = body.newObject("PartDesign::Pocket", "Pocket007")
pocket8.Profile = sketch9
pocket8.Length = 10
pocket8.Reversed = True

sketch10 = body.newObject("Sketcher::SketchObject", "Sketch009")
sketch10.AttachmentSupport = (doc.getObject("XY_Plane"), [""])
sketch10.MapMode = "FlatFace"
sketch10.addGeometry([
    Part.Circle(App.Vector(4.2, -3.5, 0), App.Vector(0, 0, 1), 1.6),
    Part.Circle(App.Vector(195.8, -3.5, 0), App.Vector(0, 0, 1), 1.6),
], False)
sketch10.addConstraint([
    Sketcher.Constraint("Equal", 0, 1),
    Sketcher.Constraint("Horizontal", 0, 3, 1, 3),
    Sketcher.Constraint("Diameter", 0, 3.3),
    Sketcher.Constraint("DistanceX", -1, 1, 0, 3, 4.2),
    Sketcher.Constraint("DistanceY", 0, 3, -1, 1, 3.5),
    Sketcher.Constraint("DistanceX", -1, 1, 1, 3, 195.8),
])
pocket9 = body.newObject("PartDesign::Pocket", "Pocket008")
pocket9.Profile = sketch10
pocket9.Length = 6
pocket9.Reversed = True

sketch11 = body.newObject("Sketcher::SketchObject", "Sketch010")
sketch11.AttachmentSupport = (doc.getObject("XY_Plane"), [""])
sketch11.MapMode = "FlatFace"
sketch11.addGeometry([
    Part.Circle(App.Vector(3, -83, 0), App.Vector(0, 0, 1), 1.5),
    Part.Circle(App.Vector(197, -117, 0), App.Vector(0, 0, 1), 1.5),
    Part.Circle(App.Vector(197, -83, 0), App.Vector(0, 0, 1), 1.5),
    Part.Circle(App.Vector(3, -117, 0), App.Vector(0, 0, 1), 1.5),
], False)
sketch11.addConstraint([
    Sketcher.Constraint("Equal", 0, 1),
    Sketcher.Constraint("Equal", 1, 2),
    Sketcher.Constraint("Equal", 2, 3),
    Sketcher.Constraint("Horizontal", 0, 3, 2, 3),
    Sketcher.Constraint("Horizontal", 1, 3, 3, 3),
    Sketcher.Constraint("Vertical", 1, 3, 2, 3),
    Sketcher.Constraint("Vertical", 0, 3, 3, 3),
    Sketcher.Constraint("Diameter", 0, 3.0),
    Sketcher.Constraint("DistanceX", -1, 1, 0, 3, 3.0),
    Sketcher.Constraint("DistanceY", 0, 3, -1, 1, 83.0),
    Sketcher.Constraint("DistanceX", -1, 1, 1, 3, 197.0),
    Sketcher.Constraint("DistanceY", 1, 3, -1, 1, 117.0),
])
pocket10 = body.newObject("PartDesign::Pocket", "Pocket009")
pocket10.Profile = sketch11
pocket10.Length = 6
pocket10.Reversed = True

sketch12 = body.newObject("Sketcher::SketchObject", "Sketch011")
sketch12.AttachmentSupport = (doc.getObject("XY_Plane"), [""])
sketch12.MapMode = "FlatFace"
sketch12.AttachmentOffset = App.Placement(App.Vector(0, 0, 6), App.Rotation())
sketch12.addGeometry([
    Part.LineSegment(App.Vector(0, -32, 0), App.Vector(0, -52, 0)),
    Part.LineSegment(App.Vector(0, -52, 0), App.Vector(6, -52, 0)),
    Part.LineSegment(App.Vector(6, -52, 0), App.Vector(6, -32, 0)),
    Part.LineSegment(App.Vector(6, -32, 0), App.Vector(0, -32, 0)),
    Part.LineSegment(App.Vector(194, -32, 0), App.Vector(194, -52, 0)),
    Part.LineSegment(App.Vector(194, -52, 0), App.Vector(200, -52, 0)),
    Part.LineSegment(App.Vector(200, -52, 0), App.Vector(200, -32, 0)),
    Part.LineSegment(App.Vector(200, -32, 0), App.Vector(194, -32, 0)),
], False)
sketch12.addConstraint([
    Sketcher.Constraint("Coincident", 0, 2, 1, 1),
    Sketcher.Constraint("Coincident", 1, 2, 2, 1),
    Sketcher.Constraint("Coincident", 2, 2, 3, 1),
    Sketcher.Constraint("Coincident", 3, 2, 0, 1),
    Sketcher.Constraint("Coincident", 4, 2, 5, 1),
    Sketcher.Constraint("Coincident", 5, 2, 6, 1),
    Sketcher.Constraint("Coincident", 6, 2, 7, 1),
    Sketcher.Constraint("Coincident", 7, 2, 4, 1),
    Sketcher.Constraint("Vertical", 0),
    Sketcher.Constraint("Horizontal", 1),
    Sketcher.Constraint("Vertical", 2),
    Sketcher.Constraint("Horizontal", 3),
    Sketcher.Constraint("Vertical", 4),
    Sketcher.Constraint("Horizontal", 5),
    Sketcher.Constraint("Vertical", 6),
    Sketcher.Constraint("Horizontal", 7),
    Sketcher.Constraint("PointOnObject", 0, 2, -2),
    Sketcher.Constraint("Horizontal", 1, 2, 4, 2),
    Sketcher.Constraint("Horizontal", 3, 2, 6, 2),
    Sketcher.Constraint("Equal", 3, 5),
    Sketcher.Constraint("DistanceX", 1, 1, 1, 2, 6.0),
    Sketcher.Constraint("DistanceY", 0, 2, 0, 1, 20.0),
    Sketcher.Constraint("DistanceY", 0, 2, -1, 1, 52.0),
    Sketcher.Constraint("DistanceX", -1, 1, 4, 2, 194.0),
])
pocket11 = body.newObject("PartDesign::Pocket", "Pocket010")
pocket11.Profile = sketch12
pocket11.Type = "ThroughAll"

sketch13 = body.newObject("Sketcher::SketchObject", "Sketch012")
sketch13.AttachmentSupport = (doc.getObject("XY_Plane"), [""])
sketch13.MapMode = "FlatFace"
sketch13.addGeometry([
    Part.Circle(App.Vector(197, -25, 0), App.Vector(0, 0, 1), 1.5),
    Part.Circle(App.Vector(197, -59, 0), App.Vector(0, 0, 1), 1.5),
    Part.Circle(App.Vector(3, -59, 0), App.Vector(0, 0, 1), 1.5),
    Part.Circle(App.Vector(3, -25, 0), App.Vector(0, 0, 1), 1.5),
], False)
sketch13.addConstraint([
    Sketcher.Constraint("Equal", 0, 1),
    Sketcher.Constraint("Equal", 1, 2),
    Sketcher.Constraint("Equal", 2, 3),
    Sketcher.Constraint("Horizontal", 1, 3, 2, 3),
    Sketcher.Constraint("Horizontal", 0, 3, 3, 3),
    Sketcher.Constraint("Vertical", 0, 3, 1, 3),
    Sketcher.Constraint("Vertical", 2, 3, 3, 3),
    Sketcher.Constraint("Diameter", 0, 3.0),
    Sketcher.Constraint("DistanceX", -1, 1, 0, 3, 197.0),
    Sketcher.Constraint("DistanceY", 0, 3, -1, 1, 25.0),
    Sketcher.Constraint("DistanceY", 1, 3, -1, 1, 59.0),
    Sketcher.Constraint("DistanceX", -1, 1, 2, 3, 3.0),
])
pocket12 = body.newObject("PartDesign::Pocket", "Pocket011")
pocket12.Profile = sketch13
pocket12.Type = "ThroughAll"
pocket12.Reversed = True

sketch14 = body.newObject("Sketcher::SketchObject", "Sketch013")
sketch14.AttachmentSupport = (doc.getObject("XY_Plane"), [""])
sketch14.MapMode = "FlatFace"
sketch14.addGeometry([
    Part.Circle(App.Vector(167, -3, 0), App.Vector(0, 0, 1), 1.5),
    Part.Circle(App.Vector(131.3, -3, 0), App.Vector(0, 0, 1), 1.5),
    Part.Circle(App.Vector(100, -3, 0), App.Vector(0, 0, 1), 1.5),
    Part.Circle(App.Vector(67, -3, 0), App.Vector(0, 0, 1), 1.5),
    Part.Circle(App.Vector(33, -3, 0), App.Vector(0, 0, 1), 1.5),
], False)
sketch14.addConstraint([
    Sketcher.Constraint("Equal", 0, 1),
    Sketcher.Constraint("Equal", 1, 2),
    Sketcher.Constraint("Equal", 2, 3),
    Sketcher.Constraint("Equal", 3, 4),
    Sketcher.Constraint("Horizontal", 0, 3, 1, 3),
    Sketcher.Constraint("Horizontal", 1, 3, 2, 3),
    Sketcher.Constraint("Horizontal", 2, 3, 3, 3),
    Sketcher.Constraint("Horizontal", 3, 3, 4, 3),
    Sketcher.Constraint("Diameter", 0, 3.0),
    Sketcher.Constraint("DistanceX", -1, 1, 0, 3, 167.0),
    Sketcher.Constraint("DistanceY", 0, 3, -1, 1, 3.0),
    Sketcher.Constraint("DistanceX", -1, 1, 2, 3, 100.0),
    Sketcher.Constraint("DistanceX", -1, 1, 3, 3, 67.0),
    Sketcher.Constraint("DistanceX", -1, 1, 4, 3, 33.0),
    Sketcher.Constraint("DistanceX", -1, 1, 1, 3, 131.260401),
])
pocket13 = body.newObject("PartDesign::Pocket", "Pocket012")
pocket13.Profile = sketch14
pocket13.Length = 6
pocket13.Reversed = True
doc.recompute()

fillet = body.newObject("PartDesign::Fillet", "Fillet")
fillet.Base = (pocket13, edges_at(pocket13, [
    (200, -110, 3),
    (200, -90, 3),
    (0, -90, 3),
    (0, -110, 3),
    (185.767, -140, 3),
    (200, -125.767, 3),
    (14.233, -140, 3),
    (0, -125.767, 3),
    (0, -52, 3),
    (0, -32, 3),
    (200, -32, 3),
    (200, -52, 3),
    (0, 0, 3),
    (200, 0, 3),
    (160, 0, 3),
    (140, 0, 3),
    (60, 0, 3),
    (40, 0, 3),
]))
fillet.Radius = 1

doc.recompute()
